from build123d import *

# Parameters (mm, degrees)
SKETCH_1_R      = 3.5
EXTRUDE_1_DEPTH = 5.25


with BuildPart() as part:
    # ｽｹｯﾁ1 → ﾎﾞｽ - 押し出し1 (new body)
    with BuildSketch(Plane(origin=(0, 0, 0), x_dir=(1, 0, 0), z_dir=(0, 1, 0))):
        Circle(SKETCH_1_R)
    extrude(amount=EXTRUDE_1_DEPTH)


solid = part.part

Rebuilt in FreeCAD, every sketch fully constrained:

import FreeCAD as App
import Part
import Sketcher
from FreeCAD import Vector

doc = App.newDocument("Part")
body = doc.addObject("PartDesign::Body", "Body")

sketch1 = body.newObject("Sketcher::SketchObject", "Sketch")
sketch1.AttachmentSupport = (doc.getObject("XZ_Plane"), [""])
sketch1.MapMode = "FlatFace"
sketch1.addGeometry(Part.Circle(Vector(0, 0, 0), Vector(0, 0, 1), 3.5), False)
sketch1.addConstraint(Sketcher.Constraint("Coincident", 0, 3, -1, 1))
sketch1.addConstraint(Sketcher.Constraint("Diameter", 0, 7.0))
pad1 = body.newObject("PartDesign::Pad", "Pad")
pad1.Profile = sketch1
pad1.Length = 5.25
pad1.Reversed = True

doc.recompute()
